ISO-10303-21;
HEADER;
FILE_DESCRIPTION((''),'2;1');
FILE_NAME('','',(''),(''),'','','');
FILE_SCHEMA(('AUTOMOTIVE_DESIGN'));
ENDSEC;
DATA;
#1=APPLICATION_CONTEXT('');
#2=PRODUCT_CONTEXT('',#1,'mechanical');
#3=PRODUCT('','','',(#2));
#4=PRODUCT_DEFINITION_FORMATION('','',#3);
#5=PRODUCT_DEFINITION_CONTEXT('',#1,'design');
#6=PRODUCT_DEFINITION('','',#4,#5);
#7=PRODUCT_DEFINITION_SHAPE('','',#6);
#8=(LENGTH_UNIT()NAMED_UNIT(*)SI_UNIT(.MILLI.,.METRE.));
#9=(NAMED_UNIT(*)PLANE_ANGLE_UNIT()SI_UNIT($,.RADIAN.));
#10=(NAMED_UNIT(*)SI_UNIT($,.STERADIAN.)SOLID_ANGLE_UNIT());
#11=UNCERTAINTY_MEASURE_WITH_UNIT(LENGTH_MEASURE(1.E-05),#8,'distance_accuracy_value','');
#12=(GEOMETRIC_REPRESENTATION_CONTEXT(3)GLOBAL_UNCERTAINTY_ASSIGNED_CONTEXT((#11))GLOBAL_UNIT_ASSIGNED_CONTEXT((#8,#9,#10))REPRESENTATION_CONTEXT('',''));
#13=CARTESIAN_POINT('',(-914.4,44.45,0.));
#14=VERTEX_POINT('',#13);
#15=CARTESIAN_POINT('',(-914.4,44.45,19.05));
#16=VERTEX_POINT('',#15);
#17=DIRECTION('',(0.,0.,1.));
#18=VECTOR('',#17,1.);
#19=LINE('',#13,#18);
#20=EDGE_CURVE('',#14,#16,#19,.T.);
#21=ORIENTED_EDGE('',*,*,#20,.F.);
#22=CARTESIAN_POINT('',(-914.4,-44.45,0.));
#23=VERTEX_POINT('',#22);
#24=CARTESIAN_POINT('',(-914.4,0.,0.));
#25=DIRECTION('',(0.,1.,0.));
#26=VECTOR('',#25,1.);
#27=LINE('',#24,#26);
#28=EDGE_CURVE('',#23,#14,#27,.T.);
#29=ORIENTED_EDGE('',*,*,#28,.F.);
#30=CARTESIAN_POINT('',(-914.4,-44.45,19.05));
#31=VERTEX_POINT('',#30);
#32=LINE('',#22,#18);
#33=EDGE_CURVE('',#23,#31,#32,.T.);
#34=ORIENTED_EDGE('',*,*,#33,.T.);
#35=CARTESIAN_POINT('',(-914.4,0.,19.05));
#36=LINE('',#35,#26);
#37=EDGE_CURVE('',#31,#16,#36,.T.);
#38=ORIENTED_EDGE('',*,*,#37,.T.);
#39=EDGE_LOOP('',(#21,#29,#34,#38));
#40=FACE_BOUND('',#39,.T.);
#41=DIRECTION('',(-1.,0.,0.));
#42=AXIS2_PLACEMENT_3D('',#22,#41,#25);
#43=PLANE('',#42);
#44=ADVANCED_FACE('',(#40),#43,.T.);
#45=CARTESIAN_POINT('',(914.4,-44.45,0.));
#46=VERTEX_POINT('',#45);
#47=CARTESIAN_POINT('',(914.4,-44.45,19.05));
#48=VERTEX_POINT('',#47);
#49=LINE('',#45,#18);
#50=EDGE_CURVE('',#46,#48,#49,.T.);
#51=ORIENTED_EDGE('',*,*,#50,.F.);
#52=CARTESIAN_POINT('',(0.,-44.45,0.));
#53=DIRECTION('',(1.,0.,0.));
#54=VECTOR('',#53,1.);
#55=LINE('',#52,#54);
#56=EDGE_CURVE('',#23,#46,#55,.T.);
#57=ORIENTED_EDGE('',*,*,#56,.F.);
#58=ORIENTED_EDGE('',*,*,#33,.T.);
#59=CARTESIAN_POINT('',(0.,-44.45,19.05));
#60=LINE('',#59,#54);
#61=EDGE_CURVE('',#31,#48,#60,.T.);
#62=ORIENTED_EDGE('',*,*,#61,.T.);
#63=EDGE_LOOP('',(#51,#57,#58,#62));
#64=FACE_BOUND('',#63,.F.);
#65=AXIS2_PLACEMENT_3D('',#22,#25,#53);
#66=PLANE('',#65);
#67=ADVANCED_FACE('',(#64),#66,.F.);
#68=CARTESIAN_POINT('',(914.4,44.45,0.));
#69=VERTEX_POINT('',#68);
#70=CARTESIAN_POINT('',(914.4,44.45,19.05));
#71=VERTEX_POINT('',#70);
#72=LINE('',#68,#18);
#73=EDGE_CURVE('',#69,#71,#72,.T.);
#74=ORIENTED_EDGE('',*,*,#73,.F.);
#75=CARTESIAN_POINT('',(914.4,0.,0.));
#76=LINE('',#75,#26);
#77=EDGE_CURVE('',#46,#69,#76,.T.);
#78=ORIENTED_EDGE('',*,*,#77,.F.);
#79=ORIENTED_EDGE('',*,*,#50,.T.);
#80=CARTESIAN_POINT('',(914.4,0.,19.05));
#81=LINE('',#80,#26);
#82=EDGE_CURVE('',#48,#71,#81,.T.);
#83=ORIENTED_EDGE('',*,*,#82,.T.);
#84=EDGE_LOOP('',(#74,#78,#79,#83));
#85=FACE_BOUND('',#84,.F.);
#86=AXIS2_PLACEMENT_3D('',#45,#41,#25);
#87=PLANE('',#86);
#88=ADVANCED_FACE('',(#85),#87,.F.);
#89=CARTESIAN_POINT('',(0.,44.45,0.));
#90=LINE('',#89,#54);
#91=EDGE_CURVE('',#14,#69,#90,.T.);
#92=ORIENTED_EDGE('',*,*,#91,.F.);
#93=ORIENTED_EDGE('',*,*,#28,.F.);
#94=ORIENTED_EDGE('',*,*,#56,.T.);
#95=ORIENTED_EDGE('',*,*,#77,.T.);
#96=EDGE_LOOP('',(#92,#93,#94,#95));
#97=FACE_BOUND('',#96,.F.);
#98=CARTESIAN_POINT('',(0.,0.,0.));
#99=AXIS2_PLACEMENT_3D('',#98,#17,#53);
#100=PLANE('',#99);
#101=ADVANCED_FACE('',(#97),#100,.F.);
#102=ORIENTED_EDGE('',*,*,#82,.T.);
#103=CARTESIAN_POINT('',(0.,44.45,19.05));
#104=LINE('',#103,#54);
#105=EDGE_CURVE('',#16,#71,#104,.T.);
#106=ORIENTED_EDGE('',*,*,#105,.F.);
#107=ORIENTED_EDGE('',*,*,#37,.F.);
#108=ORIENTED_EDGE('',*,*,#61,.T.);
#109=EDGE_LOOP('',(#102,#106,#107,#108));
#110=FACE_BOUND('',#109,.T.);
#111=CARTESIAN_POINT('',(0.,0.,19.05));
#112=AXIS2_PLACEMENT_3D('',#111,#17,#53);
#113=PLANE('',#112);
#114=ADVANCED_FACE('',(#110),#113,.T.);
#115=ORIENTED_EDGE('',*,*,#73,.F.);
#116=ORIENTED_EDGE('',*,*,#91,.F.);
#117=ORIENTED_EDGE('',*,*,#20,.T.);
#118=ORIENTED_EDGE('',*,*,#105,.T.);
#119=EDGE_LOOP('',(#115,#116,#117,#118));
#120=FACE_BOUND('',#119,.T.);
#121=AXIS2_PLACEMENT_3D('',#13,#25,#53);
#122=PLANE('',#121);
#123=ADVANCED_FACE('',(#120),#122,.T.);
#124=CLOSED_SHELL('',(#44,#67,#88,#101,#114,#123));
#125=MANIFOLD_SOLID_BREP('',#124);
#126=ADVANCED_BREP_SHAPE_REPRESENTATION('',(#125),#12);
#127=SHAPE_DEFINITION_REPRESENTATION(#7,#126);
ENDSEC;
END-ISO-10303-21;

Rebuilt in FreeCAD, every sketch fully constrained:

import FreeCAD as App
import Part
import Sketcher
from FreeCAD import Vector
Q = App.Units.Quantity


def add_polygon(sketch, points):
    """Adds a closed chain of lines whose ends are joined by coincident constraints."""
    first, n = sketch.GeometryCount, len(points)
    for a, b in zip(points, points[1:] + points[:1]):
        sketch.addGeometry(Part.LineSegment(App.Vector(*a, 0), App.Vector(*b, 0)), False)
    for i in range(n):
        sketch.addConstraint(Sketcher.Constraint("Coincident", first + i, 2, first + (i + 1) % n, 1))

doc = App.newDocument("Part")
body = doc.addObject("PartDesign::Body", "Body")

# Sketch on XY plane
sketch1 = body.newObject("Sketcher::SketchObject", "Sketch")
sketch1.AttachmentSupport = (doc.getObject("XY_Plane"), [""])
sketch1.MapMode = "FlatFace"
add_polygon(sketch1, [(-914.4, 44.45), (-914.4, -44.45), (914.4, -44.45), (914.4, 44.45)])  # lines 0-3
sketch1.addConstraint(Sketcher.Constraint("Vertical", 0))
sketch1.addConstraint(Sketcher.Constraint("Horizontal", 1))
sketch1.addConstraint(Sketcher.Constraint("Vertical", 2))
sketch1.addConstraint(Sketcher.Constraint("Horizontal", 3))
sketch1.addConstraint(Sketcher.Constraint("Symmetric", 0, 2, 2, 2, -1, 1))
sketch1.addConstraint(Sketcher.Constraint("DistanceX", 1, 1, 1, 2, Q("72 in")))
sketch1.addConstraint(Sketcher.Constraint("DistanceY", 0, 2, 0, 1, Q("3.5 in")))
pad1 = body.newObject("PartDesign::Pad", "Pad")
pad1.Profile = sketch1
pad1.Length = Q("0.75 in")

doc.recompute()
